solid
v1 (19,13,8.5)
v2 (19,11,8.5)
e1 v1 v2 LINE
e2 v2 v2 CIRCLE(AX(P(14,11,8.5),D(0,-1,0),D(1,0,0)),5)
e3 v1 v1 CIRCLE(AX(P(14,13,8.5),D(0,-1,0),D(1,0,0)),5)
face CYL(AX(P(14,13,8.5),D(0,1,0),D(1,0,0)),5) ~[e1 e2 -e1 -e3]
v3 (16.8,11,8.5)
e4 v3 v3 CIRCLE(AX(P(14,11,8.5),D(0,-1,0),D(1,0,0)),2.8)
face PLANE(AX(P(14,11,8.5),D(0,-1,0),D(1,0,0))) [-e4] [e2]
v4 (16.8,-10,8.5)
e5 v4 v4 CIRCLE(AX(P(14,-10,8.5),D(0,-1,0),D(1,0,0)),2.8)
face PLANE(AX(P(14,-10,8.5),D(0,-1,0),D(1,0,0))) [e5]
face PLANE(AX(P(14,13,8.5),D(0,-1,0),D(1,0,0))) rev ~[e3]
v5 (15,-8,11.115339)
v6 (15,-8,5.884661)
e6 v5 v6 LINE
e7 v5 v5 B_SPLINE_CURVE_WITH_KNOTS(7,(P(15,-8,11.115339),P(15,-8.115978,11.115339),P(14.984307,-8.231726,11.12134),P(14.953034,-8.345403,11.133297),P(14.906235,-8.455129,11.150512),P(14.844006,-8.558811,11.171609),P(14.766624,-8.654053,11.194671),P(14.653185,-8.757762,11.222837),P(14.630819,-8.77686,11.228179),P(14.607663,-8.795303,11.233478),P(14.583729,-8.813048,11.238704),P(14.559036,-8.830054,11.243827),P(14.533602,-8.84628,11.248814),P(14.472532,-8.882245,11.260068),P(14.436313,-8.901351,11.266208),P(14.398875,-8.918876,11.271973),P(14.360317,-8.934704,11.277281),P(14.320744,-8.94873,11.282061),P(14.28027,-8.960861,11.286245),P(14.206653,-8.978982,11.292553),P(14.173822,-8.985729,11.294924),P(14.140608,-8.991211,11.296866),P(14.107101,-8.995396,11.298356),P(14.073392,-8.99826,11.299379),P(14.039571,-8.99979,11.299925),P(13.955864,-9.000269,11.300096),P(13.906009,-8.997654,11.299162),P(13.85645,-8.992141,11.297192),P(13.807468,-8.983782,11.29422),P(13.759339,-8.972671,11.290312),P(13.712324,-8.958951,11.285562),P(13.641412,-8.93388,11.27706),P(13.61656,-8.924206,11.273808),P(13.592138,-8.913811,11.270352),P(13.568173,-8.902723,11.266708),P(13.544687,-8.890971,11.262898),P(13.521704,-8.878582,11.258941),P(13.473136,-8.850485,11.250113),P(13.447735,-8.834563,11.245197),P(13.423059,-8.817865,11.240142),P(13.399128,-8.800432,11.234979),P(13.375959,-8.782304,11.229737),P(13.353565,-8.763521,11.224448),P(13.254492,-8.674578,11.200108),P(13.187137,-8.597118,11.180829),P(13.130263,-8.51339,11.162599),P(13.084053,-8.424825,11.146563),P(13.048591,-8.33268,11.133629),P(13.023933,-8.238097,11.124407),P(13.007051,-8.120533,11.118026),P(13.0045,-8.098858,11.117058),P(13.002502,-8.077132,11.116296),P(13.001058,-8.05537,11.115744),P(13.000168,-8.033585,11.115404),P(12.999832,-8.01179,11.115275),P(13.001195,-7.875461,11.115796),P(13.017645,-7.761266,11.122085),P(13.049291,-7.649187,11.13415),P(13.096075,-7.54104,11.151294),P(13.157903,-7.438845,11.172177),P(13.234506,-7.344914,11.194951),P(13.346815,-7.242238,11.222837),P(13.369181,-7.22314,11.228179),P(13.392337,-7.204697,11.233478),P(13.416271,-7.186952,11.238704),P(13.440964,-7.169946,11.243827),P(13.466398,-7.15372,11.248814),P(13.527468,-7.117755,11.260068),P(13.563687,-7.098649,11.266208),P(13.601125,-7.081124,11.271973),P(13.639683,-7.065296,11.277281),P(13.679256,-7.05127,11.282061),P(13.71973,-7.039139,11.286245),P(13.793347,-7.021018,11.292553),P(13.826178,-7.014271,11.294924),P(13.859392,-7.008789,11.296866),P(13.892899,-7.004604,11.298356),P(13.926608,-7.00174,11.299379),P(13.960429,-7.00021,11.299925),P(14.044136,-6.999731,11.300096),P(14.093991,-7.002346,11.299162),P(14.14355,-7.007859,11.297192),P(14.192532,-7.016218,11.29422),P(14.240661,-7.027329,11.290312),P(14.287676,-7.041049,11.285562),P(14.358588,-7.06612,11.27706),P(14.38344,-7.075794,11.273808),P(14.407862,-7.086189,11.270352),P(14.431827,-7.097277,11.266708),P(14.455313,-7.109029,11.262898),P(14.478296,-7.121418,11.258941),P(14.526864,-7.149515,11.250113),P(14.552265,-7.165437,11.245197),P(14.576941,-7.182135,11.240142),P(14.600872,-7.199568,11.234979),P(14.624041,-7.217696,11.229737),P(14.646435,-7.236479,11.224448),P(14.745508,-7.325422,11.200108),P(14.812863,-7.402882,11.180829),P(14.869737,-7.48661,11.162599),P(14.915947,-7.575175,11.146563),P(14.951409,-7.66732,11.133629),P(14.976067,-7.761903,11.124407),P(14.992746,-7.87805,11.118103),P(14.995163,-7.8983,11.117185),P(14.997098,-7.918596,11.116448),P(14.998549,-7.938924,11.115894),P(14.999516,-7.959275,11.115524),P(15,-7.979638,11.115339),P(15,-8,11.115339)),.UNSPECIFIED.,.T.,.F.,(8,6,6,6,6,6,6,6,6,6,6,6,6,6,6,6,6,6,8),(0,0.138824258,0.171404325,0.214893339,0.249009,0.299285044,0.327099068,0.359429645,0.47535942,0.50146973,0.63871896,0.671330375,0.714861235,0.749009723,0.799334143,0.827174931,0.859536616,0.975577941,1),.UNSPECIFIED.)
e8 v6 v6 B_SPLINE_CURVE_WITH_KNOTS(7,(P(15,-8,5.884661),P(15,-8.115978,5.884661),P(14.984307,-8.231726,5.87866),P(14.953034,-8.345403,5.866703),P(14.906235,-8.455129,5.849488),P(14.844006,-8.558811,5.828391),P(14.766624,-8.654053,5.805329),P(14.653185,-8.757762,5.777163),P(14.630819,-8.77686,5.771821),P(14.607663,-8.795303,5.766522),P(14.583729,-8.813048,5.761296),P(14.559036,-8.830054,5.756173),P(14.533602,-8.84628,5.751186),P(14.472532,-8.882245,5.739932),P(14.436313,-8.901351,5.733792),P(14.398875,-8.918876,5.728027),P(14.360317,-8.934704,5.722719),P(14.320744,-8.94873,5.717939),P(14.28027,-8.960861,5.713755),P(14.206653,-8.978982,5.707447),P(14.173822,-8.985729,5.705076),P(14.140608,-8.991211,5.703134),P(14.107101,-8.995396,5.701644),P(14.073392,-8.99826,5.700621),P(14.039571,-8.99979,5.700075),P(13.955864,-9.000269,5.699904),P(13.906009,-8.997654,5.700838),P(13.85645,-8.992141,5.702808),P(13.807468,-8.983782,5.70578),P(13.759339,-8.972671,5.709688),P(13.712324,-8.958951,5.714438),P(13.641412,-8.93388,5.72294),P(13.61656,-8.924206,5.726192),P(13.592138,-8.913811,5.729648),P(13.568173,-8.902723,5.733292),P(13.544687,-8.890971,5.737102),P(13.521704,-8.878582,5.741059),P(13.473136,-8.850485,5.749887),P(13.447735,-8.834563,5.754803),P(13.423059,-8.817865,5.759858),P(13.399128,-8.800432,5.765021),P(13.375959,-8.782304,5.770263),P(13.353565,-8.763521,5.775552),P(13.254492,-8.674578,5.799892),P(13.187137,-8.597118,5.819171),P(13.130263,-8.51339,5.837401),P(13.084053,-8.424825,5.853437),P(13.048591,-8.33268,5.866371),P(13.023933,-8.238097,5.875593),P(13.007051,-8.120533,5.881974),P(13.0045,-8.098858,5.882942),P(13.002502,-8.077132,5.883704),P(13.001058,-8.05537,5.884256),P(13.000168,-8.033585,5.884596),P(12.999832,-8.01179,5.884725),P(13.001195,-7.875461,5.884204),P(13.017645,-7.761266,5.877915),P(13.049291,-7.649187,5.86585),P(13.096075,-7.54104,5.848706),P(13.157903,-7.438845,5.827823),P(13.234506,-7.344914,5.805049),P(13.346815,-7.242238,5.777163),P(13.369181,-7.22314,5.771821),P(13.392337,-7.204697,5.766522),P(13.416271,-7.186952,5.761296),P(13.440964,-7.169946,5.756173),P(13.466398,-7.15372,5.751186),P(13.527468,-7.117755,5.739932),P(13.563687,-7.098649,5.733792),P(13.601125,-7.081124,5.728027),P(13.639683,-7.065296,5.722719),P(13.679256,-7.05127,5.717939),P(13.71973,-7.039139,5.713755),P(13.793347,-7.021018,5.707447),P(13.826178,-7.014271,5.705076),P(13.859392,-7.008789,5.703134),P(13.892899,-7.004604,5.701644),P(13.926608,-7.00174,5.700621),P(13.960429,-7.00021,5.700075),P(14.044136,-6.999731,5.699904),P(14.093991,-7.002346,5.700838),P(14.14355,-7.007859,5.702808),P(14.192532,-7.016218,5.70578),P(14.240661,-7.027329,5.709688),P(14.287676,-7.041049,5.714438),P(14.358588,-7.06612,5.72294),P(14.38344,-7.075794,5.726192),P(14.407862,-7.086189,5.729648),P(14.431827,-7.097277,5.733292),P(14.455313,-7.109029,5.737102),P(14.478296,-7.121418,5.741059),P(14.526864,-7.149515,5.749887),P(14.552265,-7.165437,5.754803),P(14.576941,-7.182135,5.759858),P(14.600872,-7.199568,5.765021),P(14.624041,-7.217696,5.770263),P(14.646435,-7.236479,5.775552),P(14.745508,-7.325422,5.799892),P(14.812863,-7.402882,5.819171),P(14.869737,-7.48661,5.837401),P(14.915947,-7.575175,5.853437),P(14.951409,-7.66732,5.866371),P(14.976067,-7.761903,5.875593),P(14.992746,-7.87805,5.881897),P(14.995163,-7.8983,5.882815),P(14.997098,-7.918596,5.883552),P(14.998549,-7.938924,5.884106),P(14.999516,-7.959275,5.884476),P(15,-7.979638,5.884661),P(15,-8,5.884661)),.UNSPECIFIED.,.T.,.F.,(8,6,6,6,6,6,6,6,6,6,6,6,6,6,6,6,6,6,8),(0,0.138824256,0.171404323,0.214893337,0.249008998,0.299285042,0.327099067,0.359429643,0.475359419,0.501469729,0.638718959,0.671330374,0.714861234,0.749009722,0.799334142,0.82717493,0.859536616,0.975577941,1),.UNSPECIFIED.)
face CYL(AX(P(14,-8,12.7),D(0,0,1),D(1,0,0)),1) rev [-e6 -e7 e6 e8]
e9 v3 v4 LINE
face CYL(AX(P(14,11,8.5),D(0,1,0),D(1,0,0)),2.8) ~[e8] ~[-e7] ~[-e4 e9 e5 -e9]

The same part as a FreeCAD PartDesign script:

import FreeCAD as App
import Part
import Sketcher

doc = App.newDocument("Part")
params = doc.addObject("Spreadsheet::Sheet", "Params")
for row, (alias, value) in enumerate([
    ("sketch1_diameter", "2 mm"),
    ("pad1_length", "10 mm"),
    ("sketch2_diameter", "5.6 mm"),
    ("pad2_length", "21 mm"),
    ("sketch3_diameter", "10 mm"),
    ("pad3_length", "2 mm"),
], start=1):
    params.set(f"A{row}", alias)
    params.set(f"B{row}", "=" + value)
    params.setAlias(f"B{row}", alias)

body = doc.addObject("PartDesign::Body", "Body")

# Sketch on XZ plane
sketch1 = doc.addObject("Sketcher::SketchObject", "Sketch")
body.addObject(sketch1)
sketch1.AttachmentSupport = (doc.XZ_Plane, [""])
sketch1.MapMode = "FlatFace"
sketch1.AttachmentOffset = App.Placement(App.Vector(0, 0, -4.2), App.Rotation())
sketch1.addGeometry(Part.Circle(App.Vector(0, 21, 0), App.Vector(0, 0, 1), 1), False)
sketch1.addConstraint(Sketcher.Constraint("PointOnObject", 0, 3, -2))
sketch1.addConstraint(Sketcher.Constraint("Diameter", 0, 2.0))
sketch1.addConstraint(Sketcher.Constraint("DistanceY", -1, 1, 0, 3, 21.0))
sketch1.setExpression("Constraints[1]", "Params.sketch1_diameter")
pad1 = doc.addObject("PartDesign::Pad", "Pad")
body.addObject(pad1)
pad1.Profile = sketch1
pad1.setExpression("Length", "Params.pad1_length")
body2 = doc.addObject("PartDesign::Body", "Body001")

# Sketch on XY plane
sketch2 = doc.addObject("Sketcher::SketchObject", "Sketch001")
body2.addObject(sketch2)
sketch2.AttachmentSupport = (doc.getObject("XY_Plane001"), [""])
sketch2.MapMode = "FlatFace"
sketch2.AttachmentOffset = App.Placement(App.Vector(0, 0, 2), App.Rotation())
sketch2.addGeometry(Part.Circle(App.Vector(0, 0, 0), App.Vector(0, 0, 1), 2.8), False)
sketch2.addConstraint(Sketcher.Constraint("Coincident", 0, 3, -1, 1))
sketch2.addConstraint(Sketcher.Constraint("Diameter", 0, 5.6))
sketch2.setExpression("Constraints[1]", "Params.sketch2_diameter")
pad2 = doc.addObject("PartDesign::Pad", "Pad001")
body2.addObject(pad2)
pad2.Profile = sketch2
pad2.setExpression("Length", "Params.pad2_length")
body3 = doc.addObject("PartDesign::Body", "Body002")

# Sketch on XY plane
sketch3 = doc.addObject("Sketcher::SketchObject", "Sketch002")
body3.addObject(sketch3)
sketch3.AttachmentSupport = (doc.getObject("XY_Plane002"), [""])
sketch3.MapMode = "FlatFace"
sketch3.addGeometry(Part.Circle(App.Vector(0, 0, 0), App.Vector(0, 0, 1), 5), False)
sketch3.addConstraint(Sketcher.Constraint("Coincident", 0, 3, -1, 1))
sketch3.addConstraint(Sketcher.Constraint("Diameter", 0, 10.0))
sketch3.setExpression("Constraints[1]", "Params.sketch3_diameter")
pad3 = doc.addObject("PartDesign::Pad", "Pad002")
body3.addObject(pad3)
pad3.Profile = sketch3
pad3.setExpression("Length", "Params.pad3_length")
doc.recompute()

boolean = doc.addObject("PartDesign::Boolean", "Boolean")
body3.addObject(boolean)
boolean.Type = "Fuse"
boolean.addObjects([body2])
doc.recompute()

boolean2 = doc.addObject("PartDesign::Boolean", "Boolean001")
body3.addObject(boolean2)
boolean2.Type = "Cut"
boolean2.addObjects([body])
body4 = doc.addObject("PartDesign::Body", "Body003")
doc.recompute()

body3.Placement = App.Placement(App.Vector(0, 0, 0), App.Rotation(App.Vector(1, 0, 0), 90))
boolean3 = doc.addObject("PartDesign::Boolean", "Boolean002")
body4.addObject(boolean3)
boolean3.Type = "Fuse"
boolean3.addObjects([body3])
body5 = doc.addObject("PartDesign::Body", "Body004")
doc.recompute()

body4.Placement = App.Placement(App.Vector(14, 13, 8.5), App.Rotation(App.Vector(0, 0, 1), 0))
boolean4 = doc.addObject("PartDesign::Boolean", "Boolean003")
body5.addObject(boolean4)
boolean4.Type = "Fuse"
boolean4.addObjects([body4])

doc.recompute()
